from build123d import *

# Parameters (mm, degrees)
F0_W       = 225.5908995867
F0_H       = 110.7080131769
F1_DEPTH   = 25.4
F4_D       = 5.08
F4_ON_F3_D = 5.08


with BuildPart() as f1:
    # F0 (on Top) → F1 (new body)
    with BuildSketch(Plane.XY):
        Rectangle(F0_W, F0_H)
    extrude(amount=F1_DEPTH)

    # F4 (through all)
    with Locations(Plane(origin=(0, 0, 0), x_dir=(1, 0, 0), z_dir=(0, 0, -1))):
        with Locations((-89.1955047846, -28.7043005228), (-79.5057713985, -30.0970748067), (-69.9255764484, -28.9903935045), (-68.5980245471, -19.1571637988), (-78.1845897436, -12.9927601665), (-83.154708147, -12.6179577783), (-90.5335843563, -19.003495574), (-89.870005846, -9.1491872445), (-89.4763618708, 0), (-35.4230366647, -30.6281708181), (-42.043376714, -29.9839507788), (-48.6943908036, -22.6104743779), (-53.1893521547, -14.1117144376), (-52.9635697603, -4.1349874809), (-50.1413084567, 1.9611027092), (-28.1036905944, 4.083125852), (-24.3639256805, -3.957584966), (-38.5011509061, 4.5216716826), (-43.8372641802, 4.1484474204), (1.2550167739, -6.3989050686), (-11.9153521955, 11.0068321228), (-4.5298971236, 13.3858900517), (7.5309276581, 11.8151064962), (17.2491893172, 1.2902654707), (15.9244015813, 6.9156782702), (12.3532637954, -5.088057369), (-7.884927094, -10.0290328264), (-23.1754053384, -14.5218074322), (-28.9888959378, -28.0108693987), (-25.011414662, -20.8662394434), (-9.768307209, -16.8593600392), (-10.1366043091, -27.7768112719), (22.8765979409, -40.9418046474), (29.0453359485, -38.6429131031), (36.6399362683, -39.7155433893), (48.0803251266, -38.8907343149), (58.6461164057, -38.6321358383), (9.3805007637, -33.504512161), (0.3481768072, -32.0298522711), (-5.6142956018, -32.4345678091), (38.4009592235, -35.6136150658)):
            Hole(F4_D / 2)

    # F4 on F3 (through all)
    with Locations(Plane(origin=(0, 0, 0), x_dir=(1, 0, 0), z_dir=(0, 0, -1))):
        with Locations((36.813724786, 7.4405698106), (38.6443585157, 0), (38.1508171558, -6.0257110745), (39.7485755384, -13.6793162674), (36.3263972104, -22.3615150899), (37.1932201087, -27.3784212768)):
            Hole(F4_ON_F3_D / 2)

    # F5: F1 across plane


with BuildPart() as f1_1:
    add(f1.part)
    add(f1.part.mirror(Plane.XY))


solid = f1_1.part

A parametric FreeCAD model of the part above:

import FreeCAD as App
import Part
import Sketcher

V = App.Vector
Q = App.Units.Quantity


def add_polygon(sketch, points):
    """Adds a closed chain of lines whose ends are joined by coincident constraints."""
    first, n = sketch.GeometryCount, len(points)
    for a, b in zip(points, points[1:] + points[:1]):
        sketch.addGeometry(Part.LineSegment(App.Vector(*a, 0), App.Vector(*b, 0)), False)
    for i in range(n):
        sketch.addConstraint(Sketcher.Constraint("Coincident", first + i, 2, first + (i + 1) % n, 1))

doc = App.newDocument("Part")
body = doc.addObject("PartDesign::Body", "Body")

# Sketch on XY plane
sketch1 = doc.addObject("Sketcher::SketchObject", "Sketch")
body.addObject(sketch1)
sketch1.AttachmentSupport = (doc.XY_Plane, [""])
sketch1.MapMode = "FlatFace"
add_polygon(sketch1, [(-113, 55), (-113, -55), (113, -55), (113, 55)])  # lines 0-3
sketch1.addConstraint([
    Sketcher.Constraint("Vertical", 0),
    Sketcher.Constraint("Horizontal", 1),
    Sketcher.Constraint("Vertical", 2),
    Sketcher.Constraint("Horizontal", 3),
    Sketcher.Constraint("Symmetric", 0, 2, 2, 2, -1, 1),
    Sketcher.Constraint("DistanceX", 1, 1, 1, 2, 225.5909),
    Sketcher.Constraint("DistanceY", 0, 2, 0, 1, 110.708013),
])
pad1 = doc.addObject("PartDesign::Pad", "Pad")
body.addObject(pad1)
pad1.Profile = sketch1
pad1.Length = Q("1 in")

# Sketch on XY plane
sketch2 = doc.addObject("Sketcher::SketchObject", "Sketch001")
body.addObject(sketch2)
sketch2.AttachmentSupport = (doc.XY_Plane, [""])
sketch2.MapMode = "FlatFace"
sketch2.addGeometry([
    Part.Circle(V(-89.2, 28.7, 0), V(0, 0, 1), 2.5),  # 0
    Part.Circle(V(-79.5, 30.1, 0), V(0, 0, 1), 2.5),  # 1
    Part.Circle(V(-69.9, 29, 0), V(0, 0, 1), 2.5),  # 2
    Part.Circle(V(-68.6, 19.2, 0), V(0, 0, 1), 2.5),  # 3
    Part.Circle(V(-78.2, 13, 0), V(0, 0, 1), 2.5),  # 4
    Part.Circle(V(-83.2, 12.6, 0), V(0, 0, 1), 2.5),  # 5
    Part.Circle(V(-90.5, 19, 0), V(0, 0, 1), 2.5),  # 6
    Part.Circle(V(-89.9, 9.1, 0), V(0, 0, 1), 2.5),  # 7
    Part.Circle(V(-89.5, 0, 0), V(0, 0, 1), 2.5),  # 8
    Part.Circle(V(-35.4, 30.6, 0), V(0, 0, 1), 2.5),  # 9
    Part.Circle(V(-42, 30, 0), V(0, 0, 1), 2.5),  # 10
    Part.Circle(V(-48.7, 22.6, 0), V(0, 0, 1), 2.5),  # 11
    Part.Circle(V(-53.2, 14.1, 0), V(0, 0, 1), 2.5),  # 12
    Part.Circle(V(-53, 4.1, 0), V(0, 0, 1), 2.5),  # 13
    Part.Circle(V(-50.1, -2, 0), V(0, 0, 1), 2.5),  # 14
    Part.Circle(V(-28.1, -4.1, 0), V(0, 0, 1), 2.5),  # 15
    Part.Circle(V(-24.4, 4, 0), V(0, 0, 1), 2.5),  # 16
    Part.Circle(V(-38.5, -4.5, 0), V(0, 0, 1), 2.5),  # 17
    Part.Circle(V(-43.8, -4.1, 0), V(0, 0, 1), 2.5),  # 18
    Part.Circle(V(1.3, 6.4, 0), V(0, 0, 1), 2.5),  # 19
    Part.Circle(V(-11.9, -11, 0), V(0, 0, 1), 2.5),  # 20
    Part.Circle(V(-4.5, -13.4, 0), V(0, 0, 1), 2.5),  # 21
    Part.Circle(V(7.5, -11.8, 0), V(0, 0, 1), 2.5),  # 22
    Part.Circle(V(17.2, -1.3, 0), V(0, 0, 1), 2.5),  # 23
    Part.Circle(V(15.9, -6.9, 0), V(0, 0, 1), 2.5),  # 24
    Part.Circle(V(12.4, 5.1, 0), V(0, 0, 1), 2.5),  # 25
    Part.Circle(V(-7.9, 10, 0), V(0, 0, 1), 2.5),  # 26
    Part.Circle(V(-23.2, 14.5, 0), V(0, 0, 1), 2.5),  # 27
    Part.Circle(V(-29, 28, 0), V(0, 0, 1), 2.5),  # 28
    Part.Circle(V(-25, 20.9, 0), V(0, 0, 1), 2.5),  # 29
    Part.Circle(V(-9.8, 16.9, 0), V(0, 0, 1), 2.5),  # 30
    Part.Circle(V(-10.1, 27.8, 0), V(0, 0, 1), 2.5),  # 31
    Part.Circle(V(22.9, 40.9, 0), V(0, 0, 1), 2.5),  # 32
    Part.Circle(V(29, 38.6, 0), V(0, 0, 1), 2.5),  # 33
    Part.Circle(V(36.6, 39.7, 0), V(0, 0, 1), 2.5),  # 34
    Part.Circle(V(48.1, 38.9, 0), V(0, 0, 1), 2.5),  # 35
    Part.Circle(V(58.6, 38.6, 0), V(0, 0, 1), 2.5),  # 36
    Part.Circle(V(9.4, 33.5, 0), V(0, 0, 1), 2.5),  # 37
    Part.Circle(V(0.3, 32, 0), V(0, 0, 1), 2.5),  # 38
    Part.Circle(V(-5.6, 32.4, 0), V(0, 0, 1), 2.5),  # 39
    Part.Circle(V(38.4, 35.6, 0), V(0, 0, 1), 2.5),  # 40
], False)
sketch2.addConstraint([
    Sketcher.Constraint("Equal", 0, 1),
    Sketcher.Constraint("Equal", 1, 2),
    Sketcher.Constraint("Equal", 2, 3),
    Sketcher.Constraint("Equal", 3, 4),
    Sketcher.Constraint("Equal", 4, 5),
    Sketcher.Constraint("Equal", 5, 6),
    Sketcher.Constraint("Equal", 6, 7),
    Sketcher.Constraint("Equal", 7, 8),
    Sketcher.Constraint("Equal", 8, 9),
    Sketcher.Constraint("Equal", 9, 10),
    Sketcher.Constraint("Equal", 10, 11),
    Sketcher.Constraint("Equal", 11, 12),
    Sketcher.Constraint("Equal", 12, 13),
    Sketcher.Constraint("Equal", 13, 14),
    Sketcher.Constraint("Equal", 14, 15),
    Sketcher.Constraint("Equal", 15, 16),
    Sketcher.Constraint("Equal", 16, 17),
    Sketcher.Constraint("Equal", 17, 18),
    Sketcher.Constraint("Equal", 18, 19),
    Sketcher.Constraint("Equal", 19, 20),
    Sketcher.Constraint("Equal", 20, 21),
    Sketcher.Constraint("Equal", 21, 22),
    Sketcher.Constraint("Equal", 22, 23),
    Sketcher.Constraint("Equal", 23, 24),
    Sketcher.Constraint("Equal", 24, 25),
    Sketcher.Constraint("Equal", 25, 26),
    Sketcher.Constraint("Equal", 26, 27),
    Sketcher.Constraint("Equal", 27, 28),
    Sketcher.Constraint("Equal", 28, 29),
    Sketcher.Constraint("Equal", 29, 30),
    Sketcher.Constraint("Equal", 30, 31),
    Sketcher.Constraint("Equal", 31, 32),
    Sketcher.Constraint("Equal", 32, 33),
    Sketcher.Constraint("Equal", 33, 34),
    Sketcher.Constraint("Equal", 34, 35),
    Sketcher.Constraint("Equal", 35, 36),
    Sketcher.Constraint("Equal", 36, 37),
    Sketcher.Constraint("Equal", 37, 38),
    Sketcher.Constraint("Equal", 38, 39),
    Sketcher.Constraint("Equal", 39, 40),
    Sketcher.Constraint("PointOnObject", 8, 3, -1),
    Sketcher.Constraint("Diameter", 0, Q("0.2 in")),
    Sketcher.Constraint("DistanceX", 33, 3, 34, 3, Q("0.299 in")),
    Sketcher.Constraint("DistanceX", 31, 3, 30, 3, Q("0.0144999 in")),
    Sketcher.Constraint("DistanceY", 31, 3, 37, 3, Q("0.2255 in")),
    Sketcher.Constraint("DistanceY", -1, 1, 0, 3, 28.704301),
    Sketcher.Constraint("DistanceX", -1, 1, 24, 3, 15.924402),
    Sketcher.Constraint("DistanceX", -1, 1, 37, 3, 9.380501),
    Sketcher.Constraint("DistanceX", 7, 3, 0, 3, 0.674501),
    Sketcher.Constraint("DistanceX", 2, 3, 10, 3, 27.8822),
    Sketcher.Constraint("DistanceX", 4, 3, 11, 3, 29.490199),
    Sketcher.Constraint("DistanceX", 11, 3, 15, 3, 20.5907),
    Sketcher.Constraint("DistanceY", 15, 3, 11, 3, 26.6936),
    Sketcher.Constraint("DistanceX", 12, 3, 17, 3, 14.688201),
    Sketcher.Constraint("DistanceX", 17, 3, 20, 3, 26.585799),
    Sketcher.Constraint("DistanceX", 21, 3, 24, 3, 20.454299),
    Sketcher.Constraint("DistanceX", 16, 3, 26, 3, 16.478999),
    Sketcher.Constraint("DistanceY", 28, 3, 9, 3, 2.617301),
    Sketcher.Constraint("DistanceX", 27, 3, 30, 3, 13.407098),
    Sketcher.Constraint("DistanceY", 19, 3, 32, 3, 34.5429),
    Sketcher.Constraint("DistanceY", 31, 3, 33, 3, 10.866102),
    Sketcher.Constraint("DistanceY", 23, 3, 35, 3, 40.181),
    Sketcher.Constraint("DistanceY", 36, 3, 35, 3, 0.258598),
    Sketcher.Constraint("DistanceY", 40, 3, 33, 3, 3.029298),
    Sketcher.Constraint("DistanceX", 1, 3, -1, 1, 79.505771),
    Sketcher.Constraint("DistanceX", 4, 3, -1, 1, 78.18459),
    Sketcher.Constraint("DistanceY", -1, 1, 4, 3, 12.99276),
    Sketcher.Constraint("DistanceX", 5, 3, -1, 1, 83.154708),
    Sketcher.Constraint("DistanceX", 8, 3, -1, 1, 89.476362),
    Sketcher.Constraint("DistanceY", -1, 1, 9, 3, 30.628171),
    Sketcher.Constraint("DistanceY", -1, 1, 10, 3, 29.983951),
    Sketcher.Constraint("DistanceX", 13, 3, -1, 1, 52.96357),
    Sketcher.Constraint("DistanceX", 14, 3, -1, 1, 50.141308),
    Sketcher.Constraint("DistanceX", 17, 3, -1, 1, 38.501151),
    Sketcher.Constraint("DistanceY", 17, 3, -1, 1, 4.521672),
    Sketcher.Constraint("DistanceY", 21, 3, -1, 1, 13.38589),
    Sketcher.Constraint("DistanceX", -1, 1, 23, 3, 17.249189),
    Sketcher.Constraint("DistanceY", 24, 3, -1, 1, 6.915678),
    Sketcher.Constraint("DistanceY", -1, 1, 29, 3, 20.866239),
    Sketcher.Constraint("DistanceY", -1, 1, 30, 3, 16.85936),
    Sketcher.Constraint("DistanceY", -1, 1, 31, 3, 27.776811),
    Sketcher.Constraint("DistanceX", -1, 1, 40, 3, 38.400959),
    Sketcher.Constraint("DistanceY", 2, 3, 1, 3, 1.106681),
    Sketcher.Constraint("DistanceX", 0, 3, 2, 3, 19.269928),
    Sketcher.Constraint("DistanceX", 2, 3, 3, 3, 1.327552),
    Sketcher.Constraint("DistanceY", 3, 3, 2, 3, 9.83323),
    Sketcher.Constraint("DistanceX", 5, 3, 2, 3, 13.229132),
    Sketcher.Constraint("DistanceX", 6, 3, 0, 3, 1.33808),
    Sketcher.Constraint("DistanceY", 6, 3, 1, 3, 11.093579),
    Sketcher.Constraint("DistanceY", 7, 3, 5, 3, 3.468771),
    Sketcher.Constraint("DistanceY", 7, 3, 6, 3, 9.854308),
    Sketcher.Constraint("DistanceX", 2, 3, 9, 3, 34.50254),
    Sketcher.Constraint("DistanceY", 3, 3, 11, 3, 3.453311),
    Sketcher.Constraint("DistanceY", 12, 3, 11, 3, 8.49876),
    Sketcher.Constraint("DistanceY", 14, 3, 13, 3, 6.09609),
    Sketcher.Constraint("DistanceY", 15, 3, 16, 3, 8.040711),
    Sketcher.Constraint("DistanceX", 9, 3, 16, 3, 11.059111),
    Sketcher.Constraint("DistanceY", 17, 3, 14, 3, 2.560569),
    Sketcher.Constraint("DistanceY", 18, 3, 15, 3, 0.065322),
    Sketcher.Constraint("DistanceY", 16, 3, 19, 3, 2.44132),
    Sketcher.Constraint("DistanceX", 18, 3, 19, 3, 45.092281),
    Sketcher.Constraint("DistanceX", 20, 3, 19, 3, 13.170369),
    Sketcher.Constraint("DistanceY", 20, 3, 17, 3, 6.48516),
    Sketcher.Constraint("DistanceX", 19, 3, 22, 3, 6.275911),
    Sketcher.Constraint("DistanceY", 22, 3, 19, 3, 18.214012),
    Sketcher.Constraint("DistanceY", 22, 3, 23, 3, 10.524841),
    Sketcher.Constraint("DistanceY", 22, 3, 24, 3, 4.899428),
    Sketcher.Constraint("DistanceX", 21, 3, 25, 3, 16.883161),
    Sketcher.Constraint("DistanceX", 16, 3, 27, 3, 1.18852),
    Sketcher.Constraint("DistanceX", 9, 3, 28, 3, 6.434141),
    Sketcher.Constraint("DistanceY", 27, 3, 28, 3, 13.489062),
    Sketcher.Constraint("DistanceX", 29, 3, 27, 3, 1.836009),
    Sketcher.Constraint("DistanceY", 26, 3, 31, 3, 17.747778),
    Sketcher.Constraint("DistanceX", 19, 3, 32, 3, 21.621581),
    Sketcher.Constraint("DistanceX", 32, 3, 33, 3, 6.168738),
    Sketcher.Constraint("DistanceY", 33, 3, 34, 3, 1.07263),
    Sketcher.Constraint("DistanceX", 34, 3, 35, 3, 11.440389),
    Sketcher.Constraint("DistanceX", 35, 3, 36, 3, 10.565791),
    Sketcher.Constraint("DistanceY", 25, 3, 36, 3, 33.544078),
    Sketcher.Constraint("DistanceY", 38, 3, 37, 3, 1.47466),
    Sketcher.Constraint("DistanceX", 31, 3, 38, 3, 10.484781),
    Sketcher.Constraint("DistanceX", 31, 3, 39, 3, 4.522309),
    Sketcher.Constraint("DistanceY", -1, 1, 39, 3, 32.434568),
])
doc.recompute()
hole = doc.addObject("PartDesign::Hole", "Hole")
body.addObject(hole)
hole.Profile = sketch2
hole.ThreadType = "None"
hole.Diameter = Q("0.2 in")
hole.DepthType = "ThroughAll"
hole.Reversed = True

# Sketch on XY plane
sketch3 = doc.addObject("Sketcher::SketchObject", "Sketch002")
body.addObject(sketch3)
sketch3.AttachmentSupport = (doc.XY_Plane, [""])
sketch3.MapMode = "FlatFace"
sketch3.addGeometry([
    Part.Circle(V(36.8, -7.4, 0), V(0, 0, 1), 2.5),  # 0
    Part.Circle(V(38.6, 0, 0), V(0, 0, 1), 2.5),  # 1
    Part.Circle(V(38.2, 6, 0), V(0, 0, 1), 2.5),  # 2
    Part.Circle(V(39.7, 13.7, 0), V(0, 0, 1), 2.5),  # 3
    Part.Circle(V(36.3, 22.4, 0), V(0, 0, 1), 2.5),  # 4
    Part.Circle(V(37.2, 27.4, 0), V(0, 0, 1), 2.5),  # 5
], False)
sketch3.addConstraint([
    Sketcher.Constraint("Equal", 0, 1),
    Sketcher.Constraint("Equal", 1, 2),
    Sketcher.Constraint("Equal", 2, 3),
    Sketcher.Constraint("Equal", 3, 4),
    Sketcher.Constraint("Equal", 4, 5),
    Sketcher.Constraint("PointOnObject", 1, 3, -1),
    Sketcher.Constraint("Diameter", 0, Q("0.2 in")),
    Sketcher.Constraint("DistanceX", -1, 1, 5, 3, Q("1.4643 in")),
    Sketcher.Constraint("DistanceY", 3, 3, 4, 3, 8.682199),
    Sketcher.Constraint("DistanceY", 0, 3, -1, 1, 7.44057),
    Sketcher.Constraint("DistanceX", -1, 1, 1, 3, 38.644359),
    Sketcher.Constraint("DistanceY", -1, 1, 2, 3, 6.025711),
    Sketcher.Constraint("DistanceY", -1, 1, 5, 3, 27.378421),
    Sketcher.Constraint("DistanceX", 2, 3, 1, 3, 0.493541),
    Sketcher.Constraint("DistanceX", 2, 3, 3, 3, 1.597758),
    Sketcher.Constraint("DistanceX", 0, 3, 3, 3, 2.934851),
    Sketcher.Constraint("DistanceX", 4, 3, 3, 3, 3.422178),
    Sketcher.Constraint("DistanceY", -1, 1, 3, 3, 13.679316),
])
doc.recompute()
hole2 = doc.addObject("PartDesign::Hole", "Hole001")
body.addObject(hole2)
hole2.Profile = sketch3
hole2.ThreadType = "None"
hole2.Diameter = Q("0.2 in")
hole2.DepthType = "ThroughAll"
hole2.Reversed = True
body2 = doc.addObject("PartDesign::Body", "Body001")
doc.recompute()

body2.BaseFeature = body
doc.recompute()

mirroring = doc.addObject("Part::Mirroring", "Mirroring")
mirroring.Source = body
mirroring.Base = V(0, 0, 0)
mirroring.Normal = V(0, 0, 1)
body3 = doc.addObject("PartDesign::Body", "Body002")
body3.BaseFeature = mirroring
boolean = doc.addObject("PartDesign::Boolean", "Boolean")
body2.addObject(boolean)
boolean.Type = "Fuse"
boolean.addObjects([body3])
doc.recompute()
mirroring.Visibility = False

doc.recompute()
